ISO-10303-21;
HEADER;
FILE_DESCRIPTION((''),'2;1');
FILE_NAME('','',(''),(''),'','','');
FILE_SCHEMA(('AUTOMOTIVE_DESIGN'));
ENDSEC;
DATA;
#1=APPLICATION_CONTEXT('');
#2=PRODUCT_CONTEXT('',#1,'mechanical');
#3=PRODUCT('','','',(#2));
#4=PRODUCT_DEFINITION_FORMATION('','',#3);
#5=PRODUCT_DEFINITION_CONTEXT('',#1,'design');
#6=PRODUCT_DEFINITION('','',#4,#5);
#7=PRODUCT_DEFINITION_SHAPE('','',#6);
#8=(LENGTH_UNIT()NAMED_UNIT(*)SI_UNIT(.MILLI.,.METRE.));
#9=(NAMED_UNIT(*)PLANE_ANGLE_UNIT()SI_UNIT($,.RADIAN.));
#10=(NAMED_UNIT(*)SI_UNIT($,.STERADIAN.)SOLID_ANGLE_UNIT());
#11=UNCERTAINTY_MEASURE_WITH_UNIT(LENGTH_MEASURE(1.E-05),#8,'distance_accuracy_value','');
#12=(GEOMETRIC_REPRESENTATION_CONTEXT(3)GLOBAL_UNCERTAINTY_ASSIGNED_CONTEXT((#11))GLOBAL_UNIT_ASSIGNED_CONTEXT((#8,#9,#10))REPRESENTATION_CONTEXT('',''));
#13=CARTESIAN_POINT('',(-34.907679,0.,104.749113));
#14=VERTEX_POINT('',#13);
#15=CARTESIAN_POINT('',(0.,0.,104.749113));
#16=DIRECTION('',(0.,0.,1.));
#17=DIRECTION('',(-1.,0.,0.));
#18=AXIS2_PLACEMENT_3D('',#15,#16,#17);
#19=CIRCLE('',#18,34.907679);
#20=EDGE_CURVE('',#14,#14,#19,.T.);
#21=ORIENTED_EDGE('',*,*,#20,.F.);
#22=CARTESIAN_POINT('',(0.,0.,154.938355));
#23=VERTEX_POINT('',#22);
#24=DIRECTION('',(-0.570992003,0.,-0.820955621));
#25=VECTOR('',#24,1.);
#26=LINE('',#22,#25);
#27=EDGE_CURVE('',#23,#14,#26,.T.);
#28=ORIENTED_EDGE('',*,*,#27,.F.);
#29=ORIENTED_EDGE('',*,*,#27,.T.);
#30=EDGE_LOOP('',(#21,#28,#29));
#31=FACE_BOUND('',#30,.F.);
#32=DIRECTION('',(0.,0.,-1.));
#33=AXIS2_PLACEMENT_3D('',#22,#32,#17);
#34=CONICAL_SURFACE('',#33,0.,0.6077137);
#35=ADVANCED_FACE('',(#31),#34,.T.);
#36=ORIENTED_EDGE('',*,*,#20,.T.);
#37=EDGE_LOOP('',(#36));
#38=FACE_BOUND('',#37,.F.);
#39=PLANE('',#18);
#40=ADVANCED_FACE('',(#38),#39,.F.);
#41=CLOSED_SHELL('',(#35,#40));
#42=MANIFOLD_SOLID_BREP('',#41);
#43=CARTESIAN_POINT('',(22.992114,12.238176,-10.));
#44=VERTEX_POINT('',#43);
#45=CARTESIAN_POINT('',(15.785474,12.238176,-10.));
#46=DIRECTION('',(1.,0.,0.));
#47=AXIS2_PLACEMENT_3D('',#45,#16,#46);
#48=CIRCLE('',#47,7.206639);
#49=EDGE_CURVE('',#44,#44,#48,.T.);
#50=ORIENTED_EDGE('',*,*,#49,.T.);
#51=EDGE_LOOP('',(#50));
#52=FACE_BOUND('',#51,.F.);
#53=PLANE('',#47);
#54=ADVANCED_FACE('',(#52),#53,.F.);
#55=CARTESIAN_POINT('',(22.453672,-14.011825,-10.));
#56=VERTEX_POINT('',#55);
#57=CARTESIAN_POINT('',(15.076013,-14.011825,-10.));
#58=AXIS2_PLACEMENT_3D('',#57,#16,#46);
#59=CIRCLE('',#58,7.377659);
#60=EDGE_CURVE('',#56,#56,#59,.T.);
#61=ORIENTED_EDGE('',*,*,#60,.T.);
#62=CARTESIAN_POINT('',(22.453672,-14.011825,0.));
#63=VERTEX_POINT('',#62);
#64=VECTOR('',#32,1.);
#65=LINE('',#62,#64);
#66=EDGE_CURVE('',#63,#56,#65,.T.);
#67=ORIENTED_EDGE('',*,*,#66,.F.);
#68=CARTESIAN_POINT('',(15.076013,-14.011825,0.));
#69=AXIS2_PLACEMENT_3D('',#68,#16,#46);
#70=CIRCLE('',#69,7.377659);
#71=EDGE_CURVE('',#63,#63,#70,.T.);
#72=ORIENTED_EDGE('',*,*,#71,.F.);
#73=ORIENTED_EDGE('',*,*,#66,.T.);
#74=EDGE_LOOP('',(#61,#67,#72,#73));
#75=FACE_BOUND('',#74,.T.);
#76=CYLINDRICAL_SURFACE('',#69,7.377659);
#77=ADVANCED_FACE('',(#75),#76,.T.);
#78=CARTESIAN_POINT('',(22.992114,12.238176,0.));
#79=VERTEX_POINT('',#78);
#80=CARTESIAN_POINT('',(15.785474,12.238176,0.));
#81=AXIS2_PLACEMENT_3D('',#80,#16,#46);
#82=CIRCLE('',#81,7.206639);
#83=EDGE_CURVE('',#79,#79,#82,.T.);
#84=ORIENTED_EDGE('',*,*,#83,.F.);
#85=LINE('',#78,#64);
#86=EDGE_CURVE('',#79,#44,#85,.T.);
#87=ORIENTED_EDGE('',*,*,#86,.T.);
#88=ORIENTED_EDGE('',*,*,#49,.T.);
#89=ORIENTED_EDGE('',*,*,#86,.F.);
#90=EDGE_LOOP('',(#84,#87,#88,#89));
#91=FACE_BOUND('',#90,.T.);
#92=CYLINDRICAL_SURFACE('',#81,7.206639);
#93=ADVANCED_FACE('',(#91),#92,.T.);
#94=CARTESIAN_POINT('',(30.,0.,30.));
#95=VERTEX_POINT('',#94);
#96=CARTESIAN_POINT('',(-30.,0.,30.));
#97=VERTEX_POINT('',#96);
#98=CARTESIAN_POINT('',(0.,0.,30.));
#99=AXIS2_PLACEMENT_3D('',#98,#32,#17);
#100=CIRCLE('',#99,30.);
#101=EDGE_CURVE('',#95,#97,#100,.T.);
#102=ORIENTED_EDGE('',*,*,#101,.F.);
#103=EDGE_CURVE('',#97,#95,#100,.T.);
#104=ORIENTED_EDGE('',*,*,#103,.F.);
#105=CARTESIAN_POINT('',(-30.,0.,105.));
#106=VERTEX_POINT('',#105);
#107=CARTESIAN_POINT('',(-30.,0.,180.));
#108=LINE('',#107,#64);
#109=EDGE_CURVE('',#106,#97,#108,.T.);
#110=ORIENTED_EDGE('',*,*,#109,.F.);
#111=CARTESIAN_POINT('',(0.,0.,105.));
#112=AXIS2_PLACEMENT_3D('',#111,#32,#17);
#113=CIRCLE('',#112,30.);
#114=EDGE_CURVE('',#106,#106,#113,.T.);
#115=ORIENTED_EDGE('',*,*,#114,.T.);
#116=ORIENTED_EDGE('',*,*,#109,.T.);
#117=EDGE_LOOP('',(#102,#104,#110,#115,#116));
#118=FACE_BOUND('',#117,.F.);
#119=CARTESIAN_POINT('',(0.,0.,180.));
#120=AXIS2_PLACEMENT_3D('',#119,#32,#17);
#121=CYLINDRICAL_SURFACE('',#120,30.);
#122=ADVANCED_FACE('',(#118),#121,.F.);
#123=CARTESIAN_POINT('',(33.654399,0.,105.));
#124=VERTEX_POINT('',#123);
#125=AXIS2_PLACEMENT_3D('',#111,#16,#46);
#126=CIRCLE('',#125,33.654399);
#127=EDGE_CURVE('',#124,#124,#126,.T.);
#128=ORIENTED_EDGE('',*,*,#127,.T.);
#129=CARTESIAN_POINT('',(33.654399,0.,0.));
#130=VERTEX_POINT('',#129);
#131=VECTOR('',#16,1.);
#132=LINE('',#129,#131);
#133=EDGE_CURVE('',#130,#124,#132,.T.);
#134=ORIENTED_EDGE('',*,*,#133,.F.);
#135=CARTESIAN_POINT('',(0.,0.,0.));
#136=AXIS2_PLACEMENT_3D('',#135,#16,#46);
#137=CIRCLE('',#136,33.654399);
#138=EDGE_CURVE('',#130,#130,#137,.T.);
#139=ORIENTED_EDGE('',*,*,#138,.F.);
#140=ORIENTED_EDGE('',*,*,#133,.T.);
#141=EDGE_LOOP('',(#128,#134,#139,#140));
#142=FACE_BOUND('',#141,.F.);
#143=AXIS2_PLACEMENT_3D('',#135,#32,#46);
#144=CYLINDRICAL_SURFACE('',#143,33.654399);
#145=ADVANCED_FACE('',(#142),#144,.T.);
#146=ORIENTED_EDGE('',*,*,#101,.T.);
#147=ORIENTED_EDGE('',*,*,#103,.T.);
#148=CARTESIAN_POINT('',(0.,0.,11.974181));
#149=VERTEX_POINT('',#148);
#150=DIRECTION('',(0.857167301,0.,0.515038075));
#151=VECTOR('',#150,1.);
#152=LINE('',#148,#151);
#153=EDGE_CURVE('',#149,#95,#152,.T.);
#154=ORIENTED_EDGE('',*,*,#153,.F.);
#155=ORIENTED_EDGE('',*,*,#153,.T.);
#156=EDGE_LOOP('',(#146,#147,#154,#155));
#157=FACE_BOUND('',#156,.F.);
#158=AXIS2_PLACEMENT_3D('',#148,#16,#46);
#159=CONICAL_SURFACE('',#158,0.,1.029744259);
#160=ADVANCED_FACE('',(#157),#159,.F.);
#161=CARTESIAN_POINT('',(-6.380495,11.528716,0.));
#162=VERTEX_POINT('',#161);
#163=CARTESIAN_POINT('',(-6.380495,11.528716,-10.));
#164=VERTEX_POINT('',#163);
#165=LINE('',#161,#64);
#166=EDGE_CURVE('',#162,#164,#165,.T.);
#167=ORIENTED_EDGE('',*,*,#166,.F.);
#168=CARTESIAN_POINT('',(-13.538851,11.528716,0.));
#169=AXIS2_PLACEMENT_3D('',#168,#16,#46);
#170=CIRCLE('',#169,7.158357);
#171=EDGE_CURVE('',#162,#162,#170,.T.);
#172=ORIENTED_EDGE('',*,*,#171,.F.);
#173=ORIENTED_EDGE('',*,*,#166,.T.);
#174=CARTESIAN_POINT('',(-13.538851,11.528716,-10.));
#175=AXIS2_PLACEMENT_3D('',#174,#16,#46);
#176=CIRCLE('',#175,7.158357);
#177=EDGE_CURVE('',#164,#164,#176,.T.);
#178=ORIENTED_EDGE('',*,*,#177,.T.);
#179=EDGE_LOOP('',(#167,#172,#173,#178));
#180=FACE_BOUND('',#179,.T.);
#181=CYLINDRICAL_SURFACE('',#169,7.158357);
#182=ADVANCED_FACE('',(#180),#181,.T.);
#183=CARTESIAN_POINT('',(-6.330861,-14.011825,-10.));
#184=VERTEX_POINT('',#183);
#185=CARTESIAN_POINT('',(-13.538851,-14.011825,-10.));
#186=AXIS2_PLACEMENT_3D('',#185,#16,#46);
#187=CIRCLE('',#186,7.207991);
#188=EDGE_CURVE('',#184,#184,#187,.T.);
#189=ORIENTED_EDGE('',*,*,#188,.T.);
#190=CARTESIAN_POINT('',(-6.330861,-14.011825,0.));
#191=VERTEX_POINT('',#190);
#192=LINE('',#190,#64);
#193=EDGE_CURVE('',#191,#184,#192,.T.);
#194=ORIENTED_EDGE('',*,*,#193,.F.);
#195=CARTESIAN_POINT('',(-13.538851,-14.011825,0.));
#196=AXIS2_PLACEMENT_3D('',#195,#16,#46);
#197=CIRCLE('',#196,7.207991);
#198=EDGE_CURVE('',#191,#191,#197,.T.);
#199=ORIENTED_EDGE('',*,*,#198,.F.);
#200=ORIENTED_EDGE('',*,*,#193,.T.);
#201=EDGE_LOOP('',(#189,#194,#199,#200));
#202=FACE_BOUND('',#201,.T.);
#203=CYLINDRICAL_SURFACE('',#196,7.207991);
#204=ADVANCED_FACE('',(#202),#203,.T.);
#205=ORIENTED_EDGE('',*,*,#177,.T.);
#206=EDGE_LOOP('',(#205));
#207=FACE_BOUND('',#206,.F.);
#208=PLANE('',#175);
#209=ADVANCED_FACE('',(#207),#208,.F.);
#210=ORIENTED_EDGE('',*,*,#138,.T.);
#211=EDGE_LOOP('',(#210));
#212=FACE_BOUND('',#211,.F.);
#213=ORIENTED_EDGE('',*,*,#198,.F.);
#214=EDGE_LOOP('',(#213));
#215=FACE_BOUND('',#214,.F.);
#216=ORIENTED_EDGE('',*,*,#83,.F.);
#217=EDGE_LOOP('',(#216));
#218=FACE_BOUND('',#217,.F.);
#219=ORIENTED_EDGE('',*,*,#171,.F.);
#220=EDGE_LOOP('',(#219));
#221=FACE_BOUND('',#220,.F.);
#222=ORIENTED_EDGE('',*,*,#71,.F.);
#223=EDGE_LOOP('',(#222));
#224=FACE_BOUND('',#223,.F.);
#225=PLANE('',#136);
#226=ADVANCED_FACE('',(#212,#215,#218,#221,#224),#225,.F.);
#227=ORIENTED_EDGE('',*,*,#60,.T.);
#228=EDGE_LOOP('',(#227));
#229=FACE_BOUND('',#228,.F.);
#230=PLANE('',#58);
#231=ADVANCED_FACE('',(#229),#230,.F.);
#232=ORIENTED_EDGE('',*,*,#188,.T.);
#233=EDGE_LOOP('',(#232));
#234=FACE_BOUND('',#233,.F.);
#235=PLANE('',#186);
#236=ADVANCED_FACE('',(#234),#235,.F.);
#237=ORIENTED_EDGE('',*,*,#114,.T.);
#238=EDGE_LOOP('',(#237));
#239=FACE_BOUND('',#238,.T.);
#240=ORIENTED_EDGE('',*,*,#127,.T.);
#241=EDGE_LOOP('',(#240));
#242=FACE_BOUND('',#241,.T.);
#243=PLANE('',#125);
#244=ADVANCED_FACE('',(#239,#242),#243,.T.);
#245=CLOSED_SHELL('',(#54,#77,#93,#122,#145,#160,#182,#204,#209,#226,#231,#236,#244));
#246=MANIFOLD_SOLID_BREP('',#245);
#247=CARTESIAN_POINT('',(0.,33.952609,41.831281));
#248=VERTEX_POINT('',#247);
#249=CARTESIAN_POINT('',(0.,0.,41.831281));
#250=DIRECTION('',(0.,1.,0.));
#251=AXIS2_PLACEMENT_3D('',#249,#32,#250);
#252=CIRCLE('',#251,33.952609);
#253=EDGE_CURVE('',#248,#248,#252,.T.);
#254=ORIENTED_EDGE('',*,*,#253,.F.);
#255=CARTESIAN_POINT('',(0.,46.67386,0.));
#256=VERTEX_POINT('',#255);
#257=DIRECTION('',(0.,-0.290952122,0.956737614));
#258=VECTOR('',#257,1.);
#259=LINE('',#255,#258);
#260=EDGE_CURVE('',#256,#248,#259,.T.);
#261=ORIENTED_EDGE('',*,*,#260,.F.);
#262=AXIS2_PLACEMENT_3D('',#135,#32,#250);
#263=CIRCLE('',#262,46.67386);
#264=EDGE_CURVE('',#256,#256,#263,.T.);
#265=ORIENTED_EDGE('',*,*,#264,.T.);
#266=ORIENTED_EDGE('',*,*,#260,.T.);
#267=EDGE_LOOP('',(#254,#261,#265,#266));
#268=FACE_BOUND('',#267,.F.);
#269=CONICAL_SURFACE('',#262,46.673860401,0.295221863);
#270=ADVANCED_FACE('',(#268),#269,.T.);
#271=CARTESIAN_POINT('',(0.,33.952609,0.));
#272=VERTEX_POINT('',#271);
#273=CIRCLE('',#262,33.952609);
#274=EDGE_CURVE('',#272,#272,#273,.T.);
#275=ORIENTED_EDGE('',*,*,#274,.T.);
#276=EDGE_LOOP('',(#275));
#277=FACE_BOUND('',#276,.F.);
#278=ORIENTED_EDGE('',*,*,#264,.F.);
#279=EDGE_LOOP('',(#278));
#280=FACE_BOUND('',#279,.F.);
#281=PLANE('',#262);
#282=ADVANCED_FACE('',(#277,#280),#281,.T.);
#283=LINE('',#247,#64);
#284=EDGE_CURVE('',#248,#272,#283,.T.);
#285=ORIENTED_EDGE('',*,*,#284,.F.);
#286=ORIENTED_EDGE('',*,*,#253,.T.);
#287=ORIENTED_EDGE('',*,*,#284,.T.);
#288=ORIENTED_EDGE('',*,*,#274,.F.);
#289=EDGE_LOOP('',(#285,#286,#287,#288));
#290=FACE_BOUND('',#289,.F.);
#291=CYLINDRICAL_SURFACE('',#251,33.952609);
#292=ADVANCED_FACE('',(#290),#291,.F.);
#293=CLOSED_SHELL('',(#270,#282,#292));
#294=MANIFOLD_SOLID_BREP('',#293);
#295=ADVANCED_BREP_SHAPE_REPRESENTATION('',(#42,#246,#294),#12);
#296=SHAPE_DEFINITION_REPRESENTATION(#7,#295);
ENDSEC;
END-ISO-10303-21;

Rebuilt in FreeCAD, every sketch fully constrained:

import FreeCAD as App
import Part
import Sketcher

V = App.Vector
Q = App.Units.Quantity

doc = App.newDocument("Part")
body = doc.addObject("PartDesign::Body", "Body")

sketch1 = body.newObject("Sketcher::SketchObject", "Sketch")
sketch1.AttachmentSupport = (doc.getObject("XY_Plane"), [""])
sketch1.MapMode = "FlatFace"
sketch1.addGeometry(Part.Circle(V(0, 0, 0), V(0, 0, 1), 33.654399), False)
sketch1.addConstraint([
    Sketcher.Constraint("Coincident", 0, 3, -1, 1),
    Sketcher.Constraint("Diameter", 0, Q("67.308799 mm")),
])
pad1 = body.newObject("PartDesign::Pad", "Pad")
pad1.Profile = sketch1
pad1.Length = 105

sketch2 = body.newObject("Sketcher::SketchObject", "Sketch001")
sketch2.AttachmentSupport = (doc.getObject("XY_Plane"), [""])
sketch2.MapMode = "FlatFace"
sketch2.AttachmentOffset = App.Placement(V(0, 0, 105), App.Rotation())
sketch2.addGeometry(Part.Circle(V(0, 0, 0), V(0, 0, 1), 30), False)
sketch2.addConstraint([
    Sketcher.Constraint("Coincident", 0, 3, -1, 1),
    Sketcher.Constraint("Diameter", 0, Q("60 mm")),
])
doc.recompute()
hole = body.newObject("PartDesign::Hole", "Hole")
hole.Profile = sketch2
hole.ThreadType = "None"
hole.Diameter = 60
hole.DepthType = "Dimension"
hole.Depth = 75
hole.DrillPoint = "Angled"
hole.DrillPointAngle = 118

sketch3 = body.newObject("Sketcher::SketchObject", "Sketch002")
sketch3.AttachmentSupport = (doc.getObject("XY_Plane"), [""])
sketch3.MapMode = "FlatFace"
sketch3.addGeometry(Part.Circle(V(15.076013, -14.011825, 0), V(0, 0, 1), 7.377659), False)
sketch3.addConstraint([
    Sketcher.Constraint("Diameter", 0, Q("14.755317 mm")),
    Sketcher.Constraint("DistanceX", -1, 1, 0, 3, Q("15.076013 mm")),
    Sketcher.Constraint("DistanceY", 0, 3, -1, 1, Q("14.011825 mm")),
])
pad2 = body.newObject("PartDesign::Pad", "Pad001")
pad2.Profile = sketch3
pad2.Length = 10
pad2.Reversed = True

sketch4 = body.newObject("Sketcher::SketchObject", "Sketch003")
sketch4.AttachmentSupport = (doc.getObject("XY_Plane"), [""])
sketch4.MapMode = "FlatFace"
sketch4.addGeometry(Part.Circle(V(-13.538851, 11.528716, 0), V(0, 0, 1), 7.158357), False)
sketch4.addConstraint([
    Sketcher.Constraint("Diameter", 0, Q("14.316713 mm")),
    Sketcher.Constraint("DistanceX", 0, 3, -1, 1, Q("13.538851 mm")),
    Sketcher.Constraint("DistanceY", -1, 1, 0, 3, Q("11.528716 mm")),
])
pad3 = body.newObject("PartDesign::Pad", "Pad002")
pad3.Profile = sketch4
pad3.Length = 10
pad3.Reversed = True

sketch5 = body.newObject("Sketcher::SketchObject", "Sketch004")
sketch5.AttachmentSupport = (doc.getObject("XY_Plane"), [""])
sketch5.MapMode = "FlatFace"
sketch5.addGeometry(Part.Circle(V(15.785474, 12.238176, 0), V(0, 0, 1), 7.206639), False)
sketch5.addConstraint([
    Sketcher.Constraint("Diameter", 0, Q("14.413279 mm")),
    Sketcher.Constraint("DistanceX", -1, 1, 0, 3, Q("15.785474 mm")),
    Sketcher.Constraint("DistanceY", -1, 1, 0, 3, Q("12.238176 mm")),
])
pad4 = body.newObject("PartDesign::Pad", "Pad003")
pad4.Profile = sketch5
pad4.Length = 10
pad4.Reversed = True

sketch6 = body.newObject("Sketcher::SketchObject", "Sketch005")
sketch6.AttachmentSupport = (doc.getObject("XY_Plane"), [""])
sketch6.MapMode = "FlatFace"
sketch6.addGeometry(Part.Circle(V(-13.538851, -14.011825, 0), V(0, 0, 1), 7.207991), False)
sketch6.addConstraint([
    Sketcher.Constraint("Diameter", 0, Q("14.415982 mm")),
    Sketcher.Constraint("DistanceX", 0, 3, -1, 1, Q("13.538851 mm")),
    Sketcher.Constraint("DistanceY", 0, 3, -1, 1, Q("14.011825 mm")),
])
pad5 = body.newObject("PartDesign::Pad", "Pad004")
pad5.Profile = sketch6
pad5.Length = 10
pad5.Reversed = True
body2 = doc.addObject("PartDesign::Body", "Body001")

sketch7 = body2.newObject("Sketcher::SketchObject", "Sketch006")
sketch7.AttachmentSupport = (doc.getObject("XZ_Plane001"), [""])
sketch7.MapMode = "FlatFace"
sketch7.addGeometry([
    Part.LineSegment(V(-34.907679, 104.749113, 0), V(0, 104.749113, 0)),
    Part.LineSegment(V(0, 104.749113, 0), V(0, 154.938355, 0)),
    Part.LineSegment(V(0, 154.938355, 0), V(-34.907679, 104.749113, 0)),
], False)
sketch7.addConstraint([
    Sketcher.Constraint("Coincident", 0, 2, 1, 1),
    Sketcher.Constraint("Coincident", 1, 2, 2, 1),
    Sketcher.Constraint("Coincident", 2, 2, 0, 1),
    Sketcher.Constraint("Horizontal", 0),
    Sketcher.Constraint("Vertical", 1),
    Sketcher.Constraint("PointOnObject", 0, 2, -2),
    Sketcher.Constraint("DistanceX", 0, 1, 0, 2, Q("34.907679 mm")),
    Sketcher.Constraint("DistanceY", 1, 1, 1, 2, Q("50.189242 mm")),
    Sketcher.Constraint("DistanceY", -1, 1, 0, 2, Q("104.749113 mm")),
])
revolution = body2.newObject("PartDesign::Revolution", "Revolution")
revolution.Profile = sketch7
revolution.ReferenceAxis = (sketch7, ["V_Axis"])
revolution.Angle = 360
body3 = doc.addObject("PartDesign::Body", "Body002")

sketch8 = body3.newObject("Sketcher::SketchObject", "Sketch007")
sketch8.AttachmentSupport = (doc.getObject("YZ_Plane002"), [""])
sketch8.MapMode = "FlatFace"
sketch8.addGeometry([
    Part.LineSegment(V(33.952609, 41.831281, 0), V(33.952609, 0, 0)),
    Part.LineSegment(V(33.952609, 0, 0), V(46.67386, 0, 0)),
    Part.LineSegment(V(46.67386, 0, 0), V(33.952609, 41.831281, 0)),
], False)
sketch8.addConstraint([
    Sketcher.Constraint("Coincident", 0, 2, 1, 1),
    Sketcher.Constraint("Coincident", 1, 2, 2, 1),
    Sketcher.Constraint("Coincident", 2, 2, 0, 1),
    Sketcher.Constraint("Vertical", 0),
    Sketcher.Constraint("Horizontal", 1),
    Sketcher.Constraint("PointOnObject", 0, 2, -1),
    Sketcher.Constraint("DistanceX", 1, 1, 1, 2, Q("12.721252 mm")),
    Sketcher.Constraint("DistanceY", 0, 2, 0, 1, Q("41.831281 mm")),
    Sketcher.Constraint("DistanceX", -1, 1, 0, 2, Q("33.952609 mm")),
])
revolution2 = body3.newObject("PartDesign::Revolution", "Revolution001")
revolution2.Profile = sketch8
revolution2.ReferenceAxis = (sketch8, ["V_Axis"])
revolution2.Angle = 360

doc.recompute()
